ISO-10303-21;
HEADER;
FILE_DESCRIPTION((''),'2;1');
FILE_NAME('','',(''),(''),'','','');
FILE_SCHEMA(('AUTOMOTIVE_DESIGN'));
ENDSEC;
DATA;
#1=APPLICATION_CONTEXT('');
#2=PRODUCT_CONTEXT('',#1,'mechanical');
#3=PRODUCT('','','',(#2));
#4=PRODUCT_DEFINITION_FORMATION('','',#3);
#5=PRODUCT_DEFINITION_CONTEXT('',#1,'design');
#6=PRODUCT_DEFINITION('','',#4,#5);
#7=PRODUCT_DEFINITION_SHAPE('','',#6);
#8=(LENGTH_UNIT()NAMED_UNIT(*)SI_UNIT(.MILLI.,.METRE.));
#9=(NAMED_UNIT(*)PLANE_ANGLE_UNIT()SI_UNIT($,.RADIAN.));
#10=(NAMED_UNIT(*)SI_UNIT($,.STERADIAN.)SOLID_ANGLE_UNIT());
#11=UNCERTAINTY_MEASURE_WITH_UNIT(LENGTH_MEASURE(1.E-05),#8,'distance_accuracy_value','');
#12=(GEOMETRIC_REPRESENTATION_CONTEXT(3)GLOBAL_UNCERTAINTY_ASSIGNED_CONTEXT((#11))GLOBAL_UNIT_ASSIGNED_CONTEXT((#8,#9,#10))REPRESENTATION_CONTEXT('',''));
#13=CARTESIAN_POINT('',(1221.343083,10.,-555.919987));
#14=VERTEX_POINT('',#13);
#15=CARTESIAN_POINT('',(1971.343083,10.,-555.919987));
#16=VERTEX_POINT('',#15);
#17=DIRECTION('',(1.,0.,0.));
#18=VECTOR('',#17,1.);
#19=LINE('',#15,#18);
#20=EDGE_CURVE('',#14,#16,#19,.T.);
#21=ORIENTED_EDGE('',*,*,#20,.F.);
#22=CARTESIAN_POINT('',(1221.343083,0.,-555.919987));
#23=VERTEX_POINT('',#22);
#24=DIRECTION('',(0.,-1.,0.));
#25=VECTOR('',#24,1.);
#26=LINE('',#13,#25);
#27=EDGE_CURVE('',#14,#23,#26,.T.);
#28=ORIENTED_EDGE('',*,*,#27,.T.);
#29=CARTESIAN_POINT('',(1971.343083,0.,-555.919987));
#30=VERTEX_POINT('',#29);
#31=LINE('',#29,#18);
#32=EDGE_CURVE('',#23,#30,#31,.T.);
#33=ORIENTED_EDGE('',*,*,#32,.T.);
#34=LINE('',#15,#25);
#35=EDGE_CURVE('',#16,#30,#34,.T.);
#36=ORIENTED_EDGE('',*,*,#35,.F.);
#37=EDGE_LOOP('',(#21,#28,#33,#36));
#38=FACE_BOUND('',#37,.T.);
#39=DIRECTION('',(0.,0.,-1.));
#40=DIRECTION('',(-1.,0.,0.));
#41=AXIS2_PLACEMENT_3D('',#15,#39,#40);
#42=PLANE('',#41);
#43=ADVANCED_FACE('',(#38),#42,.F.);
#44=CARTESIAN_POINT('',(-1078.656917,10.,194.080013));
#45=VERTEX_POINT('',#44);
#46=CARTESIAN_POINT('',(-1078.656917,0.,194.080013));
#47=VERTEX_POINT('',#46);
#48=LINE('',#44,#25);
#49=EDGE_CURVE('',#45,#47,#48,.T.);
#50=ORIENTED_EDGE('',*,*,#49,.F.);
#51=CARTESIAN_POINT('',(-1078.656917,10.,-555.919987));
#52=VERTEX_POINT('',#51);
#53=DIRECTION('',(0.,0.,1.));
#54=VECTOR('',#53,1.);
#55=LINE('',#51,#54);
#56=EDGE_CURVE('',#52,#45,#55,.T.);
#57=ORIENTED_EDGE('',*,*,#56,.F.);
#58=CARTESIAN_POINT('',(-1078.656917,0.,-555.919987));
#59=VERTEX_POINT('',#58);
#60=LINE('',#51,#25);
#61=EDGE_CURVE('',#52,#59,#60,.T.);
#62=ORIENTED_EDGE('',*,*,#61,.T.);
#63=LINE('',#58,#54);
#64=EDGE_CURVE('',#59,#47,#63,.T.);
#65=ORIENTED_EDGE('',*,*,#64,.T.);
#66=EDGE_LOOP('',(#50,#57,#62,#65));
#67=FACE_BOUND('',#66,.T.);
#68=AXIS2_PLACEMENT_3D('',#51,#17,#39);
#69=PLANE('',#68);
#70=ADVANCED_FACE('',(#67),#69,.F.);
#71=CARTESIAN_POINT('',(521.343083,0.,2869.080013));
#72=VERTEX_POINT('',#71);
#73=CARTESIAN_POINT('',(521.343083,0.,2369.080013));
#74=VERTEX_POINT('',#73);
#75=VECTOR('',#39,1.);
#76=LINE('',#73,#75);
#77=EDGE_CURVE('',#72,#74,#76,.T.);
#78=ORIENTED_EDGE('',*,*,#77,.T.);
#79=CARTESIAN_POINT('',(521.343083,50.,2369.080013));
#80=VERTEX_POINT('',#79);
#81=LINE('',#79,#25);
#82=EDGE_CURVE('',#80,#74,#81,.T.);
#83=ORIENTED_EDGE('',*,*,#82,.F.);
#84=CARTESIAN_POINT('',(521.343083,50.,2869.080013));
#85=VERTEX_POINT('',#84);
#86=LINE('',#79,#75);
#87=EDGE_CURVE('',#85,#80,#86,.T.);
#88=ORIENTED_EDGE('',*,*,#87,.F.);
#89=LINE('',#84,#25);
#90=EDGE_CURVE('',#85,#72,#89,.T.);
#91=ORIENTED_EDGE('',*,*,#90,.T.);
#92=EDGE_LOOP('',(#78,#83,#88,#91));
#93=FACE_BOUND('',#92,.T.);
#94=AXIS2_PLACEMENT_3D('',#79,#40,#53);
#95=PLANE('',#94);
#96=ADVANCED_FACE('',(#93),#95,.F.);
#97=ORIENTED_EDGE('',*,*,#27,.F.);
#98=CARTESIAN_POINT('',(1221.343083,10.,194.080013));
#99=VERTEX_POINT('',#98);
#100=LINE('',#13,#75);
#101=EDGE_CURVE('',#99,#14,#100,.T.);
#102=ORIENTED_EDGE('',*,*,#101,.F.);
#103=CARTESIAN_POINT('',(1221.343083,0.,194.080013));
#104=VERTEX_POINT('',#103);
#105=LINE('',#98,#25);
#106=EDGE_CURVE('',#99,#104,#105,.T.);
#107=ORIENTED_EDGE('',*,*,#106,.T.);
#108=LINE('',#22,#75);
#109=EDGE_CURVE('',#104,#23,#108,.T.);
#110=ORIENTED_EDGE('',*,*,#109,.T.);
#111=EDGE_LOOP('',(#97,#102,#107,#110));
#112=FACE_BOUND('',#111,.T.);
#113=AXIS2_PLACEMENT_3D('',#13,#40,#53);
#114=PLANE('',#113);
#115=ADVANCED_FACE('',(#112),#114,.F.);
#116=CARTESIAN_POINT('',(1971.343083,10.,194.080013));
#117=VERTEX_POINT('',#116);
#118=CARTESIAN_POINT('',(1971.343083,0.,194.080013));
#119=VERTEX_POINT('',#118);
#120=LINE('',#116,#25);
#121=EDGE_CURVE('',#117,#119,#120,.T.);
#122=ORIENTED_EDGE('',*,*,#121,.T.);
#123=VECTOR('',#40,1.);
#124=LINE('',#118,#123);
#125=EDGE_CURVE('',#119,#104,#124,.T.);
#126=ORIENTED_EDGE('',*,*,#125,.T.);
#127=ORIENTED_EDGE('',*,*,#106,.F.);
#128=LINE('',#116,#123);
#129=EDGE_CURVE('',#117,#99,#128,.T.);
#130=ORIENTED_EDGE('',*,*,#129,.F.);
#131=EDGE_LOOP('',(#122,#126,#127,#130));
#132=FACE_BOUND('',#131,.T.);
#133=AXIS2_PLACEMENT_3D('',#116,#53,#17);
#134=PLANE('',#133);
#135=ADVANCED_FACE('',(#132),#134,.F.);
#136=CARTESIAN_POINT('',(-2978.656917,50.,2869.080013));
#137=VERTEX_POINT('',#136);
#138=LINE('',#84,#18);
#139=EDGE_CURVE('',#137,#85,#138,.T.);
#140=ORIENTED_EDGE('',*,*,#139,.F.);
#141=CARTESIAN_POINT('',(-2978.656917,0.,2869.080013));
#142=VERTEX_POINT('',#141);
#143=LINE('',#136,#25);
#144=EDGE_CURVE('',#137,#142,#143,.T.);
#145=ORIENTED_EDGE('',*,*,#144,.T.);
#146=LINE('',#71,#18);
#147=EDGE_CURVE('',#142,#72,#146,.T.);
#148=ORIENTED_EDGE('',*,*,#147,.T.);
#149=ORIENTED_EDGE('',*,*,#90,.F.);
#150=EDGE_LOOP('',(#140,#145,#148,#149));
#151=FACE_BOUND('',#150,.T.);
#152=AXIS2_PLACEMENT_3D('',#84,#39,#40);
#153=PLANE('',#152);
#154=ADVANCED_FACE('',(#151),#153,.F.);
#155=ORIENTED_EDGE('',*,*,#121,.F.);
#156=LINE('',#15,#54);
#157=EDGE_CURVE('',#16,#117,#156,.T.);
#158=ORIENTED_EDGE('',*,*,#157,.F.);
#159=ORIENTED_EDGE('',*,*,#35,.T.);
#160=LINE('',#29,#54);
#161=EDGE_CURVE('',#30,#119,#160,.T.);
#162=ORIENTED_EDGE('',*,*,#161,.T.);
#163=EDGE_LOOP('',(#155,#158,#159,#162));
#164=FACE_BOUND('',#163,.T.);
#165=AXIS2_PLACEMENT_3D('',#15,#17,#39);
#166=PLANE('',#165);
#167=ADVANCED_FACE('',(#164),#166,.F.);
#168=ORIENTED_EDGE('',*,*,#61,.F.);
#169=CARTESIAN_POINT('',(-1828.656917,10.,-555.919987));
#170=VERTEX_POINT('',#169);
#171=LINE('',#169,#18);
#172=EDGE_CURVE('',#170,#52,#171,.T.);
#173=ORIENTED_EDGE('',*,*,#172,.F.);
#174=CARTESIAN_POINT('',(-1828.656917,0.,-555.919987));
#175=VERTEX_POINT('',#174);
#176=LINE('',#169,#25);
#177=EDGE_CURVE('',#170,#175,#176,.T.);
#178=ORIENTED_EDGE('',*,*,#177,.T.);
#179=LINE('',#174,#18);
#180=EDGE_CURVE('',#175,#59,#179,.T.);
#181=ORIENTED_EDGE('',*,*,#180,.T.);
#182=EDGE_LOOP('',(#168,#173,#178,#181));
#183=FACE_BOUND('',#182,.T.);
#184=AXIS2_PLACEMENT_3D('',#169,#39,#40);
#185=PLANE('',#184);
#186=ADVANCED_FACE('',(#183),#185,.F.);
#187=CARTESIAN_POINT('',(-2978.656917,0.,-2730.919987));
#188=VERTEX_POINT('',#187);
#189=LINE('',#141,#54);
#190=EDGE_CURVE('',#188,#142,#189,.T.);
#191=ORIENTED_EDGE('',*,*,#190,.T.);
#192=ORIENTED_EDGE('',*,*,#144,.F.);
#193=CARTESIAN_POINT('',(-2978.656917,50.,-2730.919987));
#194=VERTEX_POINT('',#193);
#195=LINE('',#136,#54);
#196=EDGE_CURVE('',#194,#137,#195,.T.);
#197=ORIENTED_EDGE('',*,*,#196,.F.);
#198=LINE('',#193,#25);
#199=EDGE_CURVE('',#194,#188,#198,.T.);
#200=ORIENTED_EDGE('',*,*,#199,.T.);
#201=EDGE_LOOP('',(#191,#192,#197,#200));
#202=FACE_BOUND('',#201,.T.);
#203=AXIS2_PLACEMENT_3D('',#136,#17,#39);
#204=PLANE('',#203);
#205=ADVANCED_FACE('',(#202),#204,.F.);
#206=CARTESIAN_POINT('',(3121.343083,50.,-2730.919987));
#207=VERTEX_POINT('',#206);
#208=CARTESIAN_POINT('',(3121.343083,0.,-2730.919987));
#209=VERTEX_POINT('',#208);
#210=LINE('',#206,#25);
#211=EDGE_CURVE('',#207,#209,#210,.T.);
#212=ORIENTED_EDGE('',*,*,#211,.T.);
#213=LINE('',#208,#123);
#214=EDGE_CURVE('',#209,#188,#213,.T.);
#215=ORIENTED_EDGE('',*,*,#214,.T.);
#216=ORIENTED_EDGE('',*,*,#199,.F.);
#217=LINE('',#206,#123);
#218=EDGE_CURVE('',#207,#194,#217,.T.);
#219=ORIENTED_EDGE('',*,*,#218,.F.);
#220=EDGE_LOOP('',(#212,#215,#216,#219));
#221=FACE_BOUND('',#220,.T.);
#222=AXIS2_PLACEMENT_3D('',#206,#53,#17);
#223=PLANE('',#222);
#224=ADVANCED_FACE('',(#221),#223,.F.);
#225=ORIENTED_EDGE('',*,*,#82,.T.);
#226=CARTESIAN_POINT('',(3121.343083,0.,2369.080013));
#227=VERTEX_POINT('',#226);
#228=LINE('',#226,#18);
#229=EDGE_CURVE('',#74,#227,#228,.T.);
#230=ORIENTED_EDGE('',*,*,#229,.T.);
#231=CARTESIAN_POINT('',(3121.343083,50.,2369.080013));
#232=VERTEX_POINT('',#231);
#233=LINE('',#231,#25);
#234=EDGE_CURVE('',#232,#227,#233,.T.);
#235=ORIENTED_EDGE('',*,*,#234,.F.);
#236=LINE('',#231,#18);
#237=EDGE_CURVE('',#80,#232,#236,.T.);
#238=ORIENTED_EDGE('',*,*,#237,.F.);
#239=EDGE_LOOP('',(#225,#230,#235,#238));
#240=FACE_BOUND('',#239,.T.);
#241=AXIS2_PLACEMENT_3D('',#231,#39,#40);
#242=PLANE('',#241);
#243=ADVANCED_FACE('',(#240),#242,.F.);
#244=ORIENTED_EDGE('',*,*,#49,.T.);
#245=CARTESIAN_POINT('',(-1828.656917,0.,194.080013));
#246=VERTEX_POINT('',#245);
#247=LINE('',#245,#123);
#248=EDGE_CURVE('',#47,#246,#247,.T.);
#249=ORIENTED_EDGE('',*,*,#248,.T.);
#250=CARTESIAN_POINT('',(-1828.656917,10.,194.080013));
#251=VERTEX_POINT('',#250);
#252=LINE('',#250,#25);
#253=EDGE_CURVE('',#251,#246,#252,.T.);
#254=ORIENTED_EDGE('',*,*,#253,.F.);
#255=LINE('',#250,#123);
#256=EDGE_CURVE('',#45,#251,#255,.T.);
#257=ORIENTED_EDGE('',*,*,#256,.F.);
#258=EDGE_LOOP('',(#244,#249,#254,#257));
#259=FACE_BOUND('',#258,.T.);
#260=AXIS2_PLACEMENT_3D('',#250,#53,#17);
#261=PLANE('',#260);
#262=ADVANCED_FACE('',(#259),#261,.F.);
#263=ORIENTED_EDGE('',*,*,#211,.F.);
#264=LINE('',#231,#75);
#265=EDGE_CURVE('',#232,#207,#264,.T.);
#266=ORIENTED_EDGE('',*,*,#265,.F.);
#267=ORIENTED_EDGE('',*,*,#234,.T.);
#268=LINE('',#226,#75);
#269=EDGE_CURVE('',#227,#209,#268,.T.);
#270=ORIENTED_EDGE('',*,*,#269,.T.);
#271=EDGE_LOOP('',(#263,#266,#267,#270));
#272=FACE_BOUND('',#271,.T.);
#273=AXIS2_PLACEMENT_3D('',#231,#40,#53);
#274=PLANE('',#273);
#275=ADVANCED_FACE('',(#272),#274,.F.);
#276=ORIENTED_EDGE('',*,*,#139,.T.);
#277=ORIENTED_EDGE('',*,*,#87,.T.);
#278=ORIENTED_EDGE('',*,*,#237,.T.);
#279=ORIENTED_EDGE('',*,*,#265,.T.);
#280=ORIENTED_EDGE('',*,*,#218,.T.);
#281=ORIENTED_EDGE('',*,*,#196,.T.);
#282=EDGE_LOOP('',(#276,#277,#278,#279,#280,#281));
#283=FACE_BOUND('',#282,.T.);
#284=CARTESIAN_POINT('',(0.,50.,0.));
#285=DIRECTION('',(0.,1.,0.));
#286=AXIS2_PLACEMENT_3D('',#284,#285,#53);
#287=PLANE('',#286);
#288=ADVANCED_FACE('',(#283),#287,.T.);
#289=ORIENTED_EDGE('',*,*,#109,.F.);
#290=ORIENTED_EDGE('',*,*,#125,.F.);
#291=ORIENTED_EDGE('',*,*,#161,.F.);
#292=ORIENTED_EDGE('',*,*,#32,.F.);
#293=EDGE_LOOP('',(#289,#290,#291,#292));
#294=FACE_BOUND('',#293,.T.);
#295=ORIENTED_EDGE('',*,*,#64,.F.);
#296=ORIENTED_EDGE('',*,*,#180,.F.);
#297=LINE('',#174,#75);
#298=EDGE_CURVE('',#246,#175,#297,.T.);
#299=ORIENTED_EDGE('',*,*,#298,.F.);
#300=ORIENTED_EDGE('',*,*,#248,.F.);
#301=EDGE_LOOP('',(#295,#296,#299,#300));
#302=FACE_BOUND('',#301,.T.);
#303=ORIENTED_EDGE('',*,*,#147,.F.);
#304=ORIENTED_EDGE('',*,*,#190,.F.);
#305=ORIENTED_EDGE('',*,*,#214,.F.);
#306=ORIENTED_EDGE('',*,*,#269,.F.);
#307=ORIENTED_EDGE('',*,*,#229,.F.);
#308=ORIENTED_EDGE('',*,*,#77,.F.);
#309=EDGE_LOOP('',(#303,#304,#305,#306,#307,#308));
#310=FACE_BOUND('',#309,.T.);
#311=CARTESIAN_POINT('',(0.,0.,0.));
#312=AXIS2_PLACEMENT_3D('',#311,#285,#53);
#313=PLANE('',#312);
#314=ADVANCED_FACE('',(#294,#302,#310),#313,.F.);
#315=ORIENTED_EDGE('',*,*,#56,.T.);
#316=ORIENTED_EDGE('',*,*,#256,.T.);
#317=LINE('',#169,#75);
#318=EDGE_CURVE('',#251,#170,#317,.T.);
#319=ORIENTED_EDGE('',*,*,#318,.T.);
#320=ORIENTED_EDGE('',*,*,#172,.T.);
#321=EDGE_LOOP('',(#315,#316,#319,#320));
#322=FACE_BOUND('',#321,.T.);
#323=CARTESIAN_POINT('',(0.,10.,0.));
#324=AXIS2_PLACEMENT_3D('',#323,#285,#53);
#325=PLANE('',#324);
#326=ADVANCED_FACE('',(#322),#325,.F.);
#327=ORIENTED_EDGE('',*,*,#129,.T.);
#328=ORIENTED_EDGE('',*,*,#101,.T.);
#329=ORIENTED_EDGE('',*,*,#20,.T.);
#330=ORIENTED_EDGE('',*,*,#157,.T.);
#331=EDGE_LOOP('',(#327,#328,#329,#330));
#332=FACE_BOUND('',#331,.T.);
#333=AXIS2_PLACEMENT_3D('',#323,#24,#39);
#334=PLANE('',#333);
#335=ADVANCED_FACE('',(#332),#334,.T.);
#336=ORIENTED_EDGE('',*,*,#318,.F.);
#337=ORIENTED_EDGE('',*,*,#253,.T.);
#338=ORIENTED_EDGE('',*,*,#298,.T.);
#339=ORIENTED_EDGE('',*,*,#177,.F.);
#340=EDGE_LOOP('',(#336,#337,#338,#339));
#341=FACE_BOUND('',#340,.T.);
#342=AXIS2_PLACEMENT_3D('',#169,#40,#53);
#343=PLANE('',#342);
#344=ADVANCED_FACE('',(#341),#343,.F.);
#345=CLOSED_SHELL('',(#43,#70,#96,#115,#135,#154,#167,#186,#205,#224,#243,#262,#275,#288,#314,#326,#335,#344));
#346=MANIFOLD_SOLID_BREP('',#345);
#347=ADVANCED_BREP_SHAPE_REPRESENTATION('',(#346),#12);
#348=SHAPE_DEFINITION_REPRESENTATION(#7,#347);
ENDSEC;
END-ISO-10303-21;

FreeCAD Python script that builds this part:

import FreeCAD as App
import Part
import Sketcher
from FreeCAD import Vector

doc = App.newDocument("Part")
params = doc.addObject("Spreadsheet::Sheet", "Params")
for row, (alias, value) in enumerate([
    ("sketch1_width", "3500 mm"),
    ("sketch1_width2", "2600 mm"),
    ("sketch1_height", "500 mm"),
    ("sketch1_height2", "5100 mm"),
    ("pad1_length", "50 mm"),
    ("sketch2_width", "750 mm"),
    ("pocket1_length", "10 mm"),
], start=1):
    params.set(f"A{row}", alias)
    params.set(f"B{row}", "=" + value)
    params.setAlias(f"B{row}", alias)

body = doc.addObject("PartDesign::Body", "Body")

# Sketch on XZ plane
sketch1 = body.newObject("Sketcher::SketchObject", "Sketch")
sketch1.AttachmentSupport = (doc.getObject("XZ_Plane"), [""])
sketch1.MapMode = "FlatFace"
sketch1.addGeometry(Part.LineSegment(Vector(-2979, 2869, 0), Vector(521, 2869, 0)), False)
sketch1.addGeometry(Part.LineSegment(Vector(521, 2869, 0), Vector(521, 2369, 0)), False)
sketch1.addGeometry(Part.LineSegment(Vector(521, 2369, 0), Vector(3121, 2369, 0)), False)
sketch1.addGeometry(Part.LineSegment(Vector(3121, 2369, 0), Vector(3121, -2731, 0)), False)
sketch1.addGeometry(Part.LineSegment(Vector(3121, -2731, 0), Vector(-2979, -2731, 0)), False)
sketch1.addGeometry(Part.LineSegment(Vector(-2979, -2731, 0), Vector(-2979, 2869, 0)), False)
sketch1.addConstraint(Sketcher.Constraint("Coincident", 0, 2, 1, 1))
sketch1.addConstraint(Sketcher.Constraint("Coincident", 1, 2, 2, 1))
sketch1.addConstraint(Sketcher.Constraint("Coincident", 2, 2, 3, 1))
sketch1.addConstraint(Sketcher.Constraint("Coincident", 3, 2, 4, 1))
sketch1.addConstraint(Sketcher.Constraint("Coincident", 4, 2, 5, 1))
sketch1.addConstraint(Sketcher.Constraint("Coincident", 5, 2, 0, 1))
sketch1.addConstraint(Sketcher.Constraint("Horizontal", 0))
sketch1.addConstraint(Sketcher.Constraint("Vertical", 1))
sketch1.addConstraint(Sketcher.Constraint("Horizontal", 2))
sketch1.addConstraint(Sketcher.Constraint("Vertical", 3))
sketch1.addConstraint(Sketcher.Constraint("Horizontal", 4))
sketch1.addConstraint(Sketcher.Constraint("Vertical", 5))
sketch1.addConstraint(Sketcher.Constraint("DistanceX", 0, 1, 0, 2, 3500.0))
sketch1.addConstraint(Sketcher.Constraint("DistanceX", 2, 1, 2, 2, 2600.0))
sketch1.addConstraint(Sketcher.Constraint("DistanceY", 1, 2, 1, 1, 500.0))
sketch1.addConstraint(Sketcher.Constraint("DistanceY", 3, 2, 3, 1, 5100.0))
sketch1.addConstraint(Sketcher.Constraint("DistanceX", -1, 1, 0, 2, 521.343083))
sketch1.addConstraint(Sketcher.Constraint("DistanceY", -1, 1, 0, 2, 2869.080013))
sketch1.setExpression("Constraints[12]", "Params.sketch1_width")
sketch1.setExpression("Constraints[13]", "Params.sketch1_width2")
sketch1.setExpression("Constraints[14]", "Params.sketch1_height")
sketch1.setExpression("Constraints[15]", "Params.sketch1_height2")
pad1 = body.newObject("PartDesign::Pad", "Pad")
pad1.Profile = sketch1
pad1.setExpression("Length", "Params.pad1_length")
pad1.Reversed = True

# Sketch on XZ plane
sketch2 = body.newObject("Sketcher::SketchObject", "Sketch001")
sketch2.AttachmentSupport = (doc.getObject("XZ_Plane"), [""])
sketch2.MapMode = "FlatFace"
sketch2.addGeometry(Part.LineSegment(Vector(-1829, 194, 0), Vector(-1829, -556, 0)), False)
sketch2.addGeometry(Part.LineSegment(Vector(-1829, -556, 0), Vector(-1079, -556, 0)), False)
sketch2.addGeometry(Part.LineSegment(Vector(-1079, -556, 0), Vector(-1079, 194, 0)), False)
sketch2.addGeometry(Part.LineSegment(Vector(-1079, 194, 0), Vector(-1829, 194, 0)), False)
sketch2.addGeometry(Part.LineSegment(Vector(1221, 194, 0), Vector(1221, -556, 0)), False)
sketch2.addGeometry(Part.LineSegment(Vector(1221, -556, 0), Vector(1971, -556, 0)), False)
sketch2.addGeometry(Part.LineSegment(Vector(1971, -556, 0), Vector(1971, 194, 0)), False)
sketch2.addGeometry(Part.LineSegment(Vector(1971, 194, 0), Vector(1221, 194, 0)), False)
sketch2.addConstraint(Sketcher.Constraint("Coincident", 0, 2, 1, 1))
sketch2.addConstraint(Sketcher.Constraint("Coincident", 1, 2, 2, 1))
sketch2.addConstraint(Sketcher.Constraint("Coincident", 2, 2, 3, 1))
sketch2.addConstraint(Sketcher.Constraint("Coincident", 3, 2, 0, 1))
sketch2.addConstraint(Sketcher.Constraint("Coincident", 4, 2, 5, 1))
sketch2.addConstraint(Sketcher.Constraint("Coincident", 5, 2, 6, 1))
sketch2.addConstraint(Sketcher.Constraint("Coincident", 6, 2, 7, 1))
sketch2.addConstraint(Sketcher.Constraint("Coincident", 7, 2, 4, 1))
sketch2.addConstraint(Sketcher.Constraint("Vertical", 0))
sketch2.addConstraint(Sketcher.Constraint("Horizontal", 1))
sketch2.addConstraint(Sketcher.Constraint("Vertical", 2))
sketch2.addConstraint(Sketcher.Constraint("Horizontal", 3))
sketch2.addConstraint(Sketcher.Constraint("Vertical", 4))
sketch2.addConstraint(Sketcher.Constraint("Horizontal", 5))
sketch2.addConstraint(Sketcher.Constraint("Vertical", 6))
sketch2.addConstraint(Sketcher.Constraint("Horizontal", 7))
sketch2.addConstraint(Sketcher.Constraint("Horizontal", 1, 2, 4, 2))
sketch2.addConstraint(Sketcher.Constraint("Horizontal", 3, 2, 6, 2))
sketch2.addConstraint(Sketcher.Constraint("Equal", 3, 5))
sketch2.addConstraint(Sketcher.Constraint("Equal", 7, 0))
sketch2.addConstraint(Sketcher.Constraint("DistanceX", 1, 1, 1, 2, 750.0))
sketch2.addConstraint(Sketcher.Constraint("DistanceX", 1, 2, 4, 2, 2300.0))
sketch2.addConstraint(Sketcher.Constraint("DistanceX", 0, 2, -1, 1, 1828.656917))
sketch2.addConstraint(Sketcher.Constraint("DistanceY", 0, 2, -1, 1, 555.919987))
sketch2.setExpression("Constraints[20]", "Params.sketch2_width")
pocket1 = body.newObject("PartDesign::Pocket", "Pocket")
pocket1.Profile = sketch2
pocket1.setExpression("Length", "Params.pocket1_length")

doc.recompute()
